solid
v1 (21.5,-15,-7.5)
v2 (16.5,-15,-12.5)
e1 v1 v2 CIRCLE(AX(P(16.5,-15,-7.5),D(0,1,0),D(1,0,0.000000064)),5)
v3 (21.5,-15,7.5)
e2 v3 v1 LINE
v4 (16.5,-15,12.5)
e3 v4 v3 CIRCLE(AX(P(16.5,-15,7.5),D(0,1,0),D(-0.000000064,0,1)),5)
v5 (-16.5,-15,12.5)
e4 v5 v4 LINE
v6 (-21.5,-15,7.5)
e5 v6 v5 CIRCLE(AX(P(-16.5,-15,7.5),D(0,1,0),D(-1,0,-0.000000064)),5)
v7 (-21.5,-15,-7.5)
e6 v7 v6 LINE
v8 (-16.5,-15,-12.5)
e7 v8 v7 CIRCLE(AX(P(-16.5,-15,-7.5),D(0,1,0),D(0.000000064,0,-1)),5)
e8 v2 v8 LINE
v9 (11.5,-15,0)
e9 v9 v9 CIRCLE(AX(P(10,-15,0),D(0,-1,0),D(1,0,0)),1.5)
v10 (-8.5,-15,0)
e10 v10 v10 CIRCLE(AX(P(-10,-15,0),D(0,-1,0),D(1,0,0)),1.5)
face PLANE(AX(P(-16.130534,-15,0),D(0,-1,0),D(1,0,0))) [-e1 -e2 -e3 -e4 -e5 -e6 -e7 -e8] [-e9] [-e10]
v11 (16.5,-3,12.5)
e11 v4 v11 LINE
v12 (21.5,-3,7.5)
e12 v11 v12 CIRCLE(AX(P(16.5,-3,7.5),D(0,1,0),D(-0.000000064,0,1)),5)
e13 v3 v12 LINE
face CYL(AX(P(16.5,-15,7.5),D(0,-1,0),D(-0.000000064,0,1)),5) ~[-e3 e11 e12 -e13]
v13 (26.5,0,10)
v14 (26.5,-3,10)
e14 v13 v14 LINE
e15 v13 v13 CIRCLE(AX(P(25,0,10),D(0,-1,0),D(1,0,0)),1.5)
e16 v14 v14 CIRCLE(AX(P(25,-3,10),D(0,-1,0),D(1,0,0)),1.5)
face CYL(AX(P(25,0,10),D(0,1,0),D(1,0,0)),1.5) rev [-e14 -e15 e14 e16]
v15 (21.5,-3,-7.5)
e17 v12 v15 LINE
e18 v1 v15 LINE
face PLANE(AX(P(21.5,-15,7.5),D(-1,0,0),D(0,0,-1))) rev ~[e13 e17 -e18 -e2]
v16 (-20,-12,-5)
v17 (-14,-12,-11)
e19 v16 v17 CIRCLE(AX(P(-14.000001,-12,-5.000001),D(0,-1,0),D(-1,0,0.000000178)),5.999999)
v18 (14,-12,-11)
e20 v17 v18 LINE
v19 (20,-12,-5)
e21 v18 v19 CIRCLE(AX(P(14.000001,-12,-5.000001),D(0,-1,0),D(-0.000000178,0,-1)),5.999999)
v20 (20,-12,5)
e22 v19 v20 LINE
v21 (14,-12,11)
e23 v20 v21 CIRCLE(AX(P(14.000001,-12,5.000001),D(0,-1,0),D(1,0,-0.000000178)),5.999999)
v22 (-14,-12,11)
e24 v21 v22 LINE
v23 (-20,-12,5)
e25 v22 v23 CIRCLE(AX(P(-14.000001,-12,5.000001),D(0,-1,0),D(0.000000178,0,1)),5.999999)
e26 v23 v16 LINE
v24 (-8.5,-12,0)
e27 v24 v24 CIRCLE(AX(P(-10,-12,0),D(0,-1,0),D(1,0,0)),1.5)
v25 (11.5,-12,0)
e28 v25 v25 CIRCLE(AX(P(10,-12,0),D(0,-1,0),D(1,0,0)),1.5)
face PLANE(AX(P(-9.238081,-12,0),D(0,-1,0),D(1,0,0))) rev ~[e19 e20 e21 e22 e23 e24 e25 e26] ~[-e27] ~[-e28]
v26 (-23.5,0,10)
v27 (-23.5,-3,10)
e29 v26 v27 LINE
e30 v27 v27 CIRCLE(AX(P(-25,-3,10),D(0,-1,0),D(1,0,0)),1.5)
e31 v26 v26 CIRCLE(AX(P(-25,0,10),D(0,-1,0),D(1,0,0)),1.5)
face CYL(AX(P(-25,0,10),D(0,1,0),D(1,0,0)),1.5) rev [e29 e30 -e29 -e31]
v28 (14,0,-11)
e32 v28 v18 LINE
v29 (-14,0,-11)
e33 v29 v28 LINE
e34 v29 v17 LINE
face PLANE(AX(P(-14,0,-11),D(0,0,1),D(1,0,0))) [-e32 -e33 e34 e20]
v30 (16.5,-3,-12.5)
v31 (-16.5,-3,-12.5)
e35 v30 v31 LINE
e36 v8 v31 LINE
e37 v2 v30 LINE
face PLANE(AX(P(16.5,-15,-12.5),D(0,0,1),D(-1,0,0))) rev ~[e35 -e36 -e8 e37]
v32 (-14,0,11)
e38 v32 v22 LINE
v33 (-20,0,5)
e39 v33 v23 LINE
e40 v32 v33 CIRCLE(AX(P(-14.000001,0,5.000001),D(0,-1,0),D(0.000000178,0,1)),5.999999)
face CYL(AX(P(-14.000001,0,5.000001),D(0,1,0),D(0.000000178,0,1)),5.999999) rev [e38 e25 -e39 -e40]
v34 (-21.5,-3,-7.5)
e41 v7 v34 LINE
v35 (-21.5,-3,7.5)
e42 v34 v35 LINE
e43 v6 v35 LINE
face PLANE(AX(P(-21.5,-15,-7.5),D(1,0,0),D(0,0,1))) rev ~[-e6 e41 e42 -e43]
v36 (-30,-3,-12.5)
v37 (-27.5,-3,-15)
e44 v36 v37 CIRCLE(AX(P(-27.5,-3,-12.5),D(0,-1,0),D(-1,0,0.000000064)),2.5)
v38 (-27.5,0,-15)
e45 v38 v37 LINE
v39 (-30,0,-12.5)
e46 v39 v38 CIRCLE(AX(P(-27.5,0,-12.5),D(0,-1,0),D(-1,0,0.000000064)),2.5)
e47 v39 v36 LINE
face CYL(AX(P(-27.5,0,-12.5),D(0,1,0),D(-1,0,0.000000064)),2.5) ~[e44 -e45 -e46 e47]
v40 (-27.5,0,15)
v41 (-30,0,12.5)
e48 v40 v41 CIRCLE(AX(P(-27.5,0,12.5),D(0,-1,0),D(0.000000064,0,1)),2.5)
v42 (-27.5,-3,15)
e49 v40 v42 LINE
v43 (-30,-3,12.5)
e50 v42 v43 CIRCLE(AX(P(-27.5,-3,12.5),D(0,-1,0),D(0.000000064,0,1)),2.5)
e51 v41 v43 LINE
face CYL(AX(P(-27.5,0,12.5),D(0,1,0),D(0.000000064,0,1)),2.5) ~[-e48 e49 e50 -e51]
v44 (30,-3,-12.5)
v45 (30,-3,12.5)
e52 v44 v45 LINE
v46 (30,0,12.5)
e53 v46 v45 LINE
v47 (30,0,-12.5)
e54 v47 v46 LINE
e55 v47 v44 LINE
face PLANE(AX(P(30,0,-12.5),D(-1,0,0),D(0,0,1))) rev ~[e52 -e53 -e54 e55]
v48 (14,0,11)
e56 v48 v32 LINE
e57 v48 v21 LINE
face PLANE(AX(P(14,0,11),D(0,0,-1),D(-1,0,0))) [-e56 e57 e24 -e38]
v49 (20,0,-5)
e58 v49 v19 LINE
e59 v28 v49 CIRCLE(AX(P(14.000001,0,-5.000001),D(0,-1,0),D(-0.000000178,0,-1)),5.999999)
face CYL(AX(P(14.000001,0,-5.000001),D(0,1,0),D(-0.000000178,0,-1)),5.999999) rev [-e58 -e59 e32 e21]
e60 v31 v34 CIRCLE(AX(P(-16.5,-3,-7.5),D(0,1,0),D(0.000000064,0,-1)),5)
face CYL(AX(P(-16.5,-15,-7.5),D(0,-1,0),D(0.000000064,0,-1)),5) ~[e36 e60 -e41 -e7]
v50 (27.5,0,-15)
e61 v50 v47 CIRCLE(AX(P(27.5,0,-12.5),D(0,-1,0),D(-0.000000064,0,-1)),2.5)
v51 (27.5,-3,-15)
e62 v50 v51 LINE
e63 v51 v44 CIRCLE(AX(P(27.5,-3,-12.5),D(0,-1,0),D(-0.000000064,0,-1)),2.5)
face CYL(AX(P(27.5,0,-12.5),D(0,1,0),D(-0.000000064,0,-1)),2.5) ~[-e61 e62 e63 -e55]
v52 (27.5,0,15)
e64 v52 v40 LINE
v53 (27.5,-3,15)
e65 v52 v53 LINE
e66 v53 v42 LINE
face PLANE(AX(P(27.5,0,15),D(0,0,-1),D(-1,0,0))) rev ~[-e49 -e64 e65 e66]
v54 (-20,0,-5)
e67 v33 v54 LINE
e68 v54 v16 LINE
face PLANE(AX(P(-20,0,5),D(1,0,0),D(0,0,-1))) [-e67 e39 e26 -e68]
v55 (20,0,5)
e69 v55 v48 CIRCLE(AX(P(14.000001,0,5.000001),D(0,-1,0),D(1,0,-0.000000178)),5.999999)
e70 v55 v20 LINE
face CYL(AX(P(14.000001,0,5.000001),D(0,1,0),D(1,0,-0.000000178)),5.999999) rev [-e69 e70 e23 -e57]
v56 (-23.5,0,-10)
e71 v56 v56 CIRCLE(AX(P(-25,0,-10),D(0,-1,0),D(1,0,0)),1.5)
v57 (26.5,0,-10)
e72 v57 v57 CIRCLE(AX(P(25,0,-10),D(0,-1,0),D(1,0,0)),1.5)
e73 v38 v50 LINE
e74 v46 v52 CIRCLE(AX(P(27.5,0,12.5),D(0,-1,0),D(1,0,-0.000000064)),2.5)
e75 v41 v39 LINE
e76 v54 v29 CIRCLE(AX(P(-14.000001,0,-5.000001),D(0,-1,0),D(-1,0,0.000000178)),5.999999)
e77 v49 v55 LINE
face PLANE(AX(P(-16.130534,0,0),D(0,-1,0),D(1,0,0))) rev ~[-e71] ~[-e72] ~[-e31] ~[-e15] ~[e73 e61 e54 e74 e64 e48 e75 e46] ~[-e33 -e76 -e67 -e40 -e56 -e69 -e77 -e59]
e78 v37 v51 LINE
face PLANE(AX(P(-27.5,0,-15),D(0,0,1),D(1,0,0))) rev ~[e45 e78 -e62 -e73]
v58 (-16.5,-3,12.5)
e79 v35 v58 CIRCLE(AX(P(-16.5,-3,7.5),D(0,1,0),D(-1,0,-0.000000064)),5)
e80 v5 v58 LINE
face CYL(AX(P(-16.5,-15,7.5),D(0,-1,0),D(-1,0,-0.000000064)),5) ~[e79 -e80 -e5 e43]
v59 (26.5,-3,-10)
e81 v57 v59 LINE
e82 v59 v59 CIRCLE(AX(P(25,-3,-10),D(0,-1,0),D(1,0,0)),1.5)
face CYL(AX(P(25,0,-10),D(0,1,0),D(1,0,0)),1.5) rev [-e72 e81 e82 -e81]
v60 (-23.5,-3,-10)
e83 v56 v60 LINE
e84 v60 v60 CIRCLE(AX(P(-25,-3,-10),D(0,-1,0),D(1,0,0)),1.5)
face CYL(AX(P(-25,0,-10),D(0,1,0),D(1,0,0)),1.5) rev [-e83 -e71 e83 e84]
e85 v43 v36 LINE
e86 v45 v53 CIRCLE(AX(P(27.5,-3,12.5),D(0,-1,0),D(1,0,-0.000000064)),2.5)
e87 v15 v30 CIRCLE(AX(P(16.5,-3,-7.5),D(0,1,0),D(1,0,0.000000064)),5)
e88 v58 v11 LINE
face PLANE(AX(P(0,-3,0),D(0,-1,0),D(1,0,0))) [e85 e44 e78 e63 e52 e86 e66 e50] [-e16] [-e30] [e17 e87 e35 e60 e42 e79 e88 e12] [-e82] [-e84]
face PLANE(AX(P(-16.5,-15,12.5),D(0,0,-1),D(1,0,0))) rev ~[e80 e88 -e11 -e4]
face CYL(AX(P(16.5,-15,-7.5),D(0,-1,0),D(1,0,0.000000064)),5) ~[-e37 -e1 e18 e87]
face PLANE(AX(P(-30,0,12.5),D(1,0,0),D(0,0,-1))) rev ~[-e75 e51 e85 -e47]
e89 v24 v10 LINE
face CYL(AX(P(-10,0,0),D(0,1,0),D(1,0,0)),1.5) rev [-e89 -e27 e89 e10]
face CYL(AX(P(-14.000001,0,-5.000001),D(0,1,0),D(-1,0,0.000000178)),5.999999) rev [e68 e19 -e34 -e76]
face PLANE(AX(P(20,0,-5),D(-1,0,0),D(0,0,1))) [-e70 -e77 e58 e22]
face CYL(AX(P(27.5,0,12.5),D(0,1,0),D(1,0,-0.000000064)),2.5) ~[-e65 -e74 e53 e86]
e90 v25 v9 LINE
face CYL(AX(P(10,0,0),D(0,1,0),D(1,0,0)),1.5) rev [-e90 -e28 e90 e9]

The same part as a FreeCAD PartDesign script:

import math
import FreeCAD as App
import Part
import Sketcher
from FreeCAD import Vector

doc = App.newDocument("Part")
body = doc.addObject("PartDesign::Body", "Body")

sketch1 = doc.addObject("Sketcher::SketchObject", "Sketch")
body.addObject(sketch1)
sketch1.AttachmentSupport = (doc.XZ_Plane, [""])
sketch1.MapMode = "FlatFace"
sketch1.addGeometry([
    Part.ArcOfCircle(Part.Circle(Vector(-27.5, 12.5, 0), Vector(0, 0, 1), 2.5), math.radians(89.999996), math.radians(180.000004)),
    Part.LineSegment(Vector(-30, 12.5, 0), Vector(-30, -12.5, 0)),
    Part.ArcOfCircle(Part.Circle(Vector(-27.5, -12.5, 0), Vector(0, 0, 1), 2.5), math.radians(179.999996), math.radians(270.000004)),
    Part.LineSegment(Vector(-27.5, -15, 0), Vector(27.5, -15, 0)),
    Part.ArcOfCircle(Part.Circle(Vector(27.5, -12.5, 0), Vector(0, 0, 1), 2.5), math.radians(-90.000004), math.radians(0.000004)),
    Part.LineSegment(Vector(30, -12.5, 0), Vector(30, 12.5, 0)),
    Part.ArcOfCircle(Part.Circle(Vector(27.5, 12.5, 0), Vector(0, 0, 1), 2.5), math.radians(-0.000004), math.radians(90.000004)),
    Part.LineSegment(Vector(27.5, 15, 0), Vector(-27.5, 15, 0)),
    Part.Circle(Vector(-25, -10, 0), Vector(0, 0, 1), 1.5),
    Part.Circle(Vector(25, -10, 0), Vector(0, 0, 1), 1.5),
    Part.Circle(Vector(-10, 0, 0), Vector(0, 0, 1), 1.5),
    Part.Circle(Vector(-25, 10, 0), Vector(0, 0, 1), 1.5),
    Part.Circle(Vector(10, 0, 0), Vector(0, 0, 1), 1.5),
    Part.Circle(Vector(25, 10, 0), Vector(0, 0, 1), 1.5),
], False)
sketch1.addConstraint([
    Sketcher.Constraint("Tangent", 0, 2, 1, 1),
    Sketcher.Constraint("Tangent", 1, 2, 2, 1),
    Sketcher.Constraint("Tangent", 2, 2, 3, 1),
    Sketcher.Constraint("Tangent", 3, 2, 4, 1),
    Sketcher.Constraint("Tangent", 4, 2, 5, 1),
    Sketcher.Constraint("Tangent", 5, 2, 6, 1),
    Sketcher.Constraint("Tangent", 6, 2, 7, 1),
    Sketcher.Constraint("Tangent", 7, 2, 0, 1),
    Sketcher.Constraint("Vertical", 1),
    Sketcher.Constraint("Horizontal", 3),
    Sketcher.Constraint("Vertical", 5),
    Sketcher.Constraint("Horizontal", 7),
    Sketcher.Constraint("Equal", 0, 2),
    Sketcher.Constraint("Equal", 2, 4),
    Sketcher.Constraint("Equal", 4, 6),
    Sketcher.Constraint("Equal", 8, 9),
    Sketcher.Constraint("Equal", 9, 10),
    Sketcher.Constraint("Equal", 10, 11),
    Sketcher.Constraint("Equal", 11, 12),
    Sketcher.Constraint("Equal", 12, 13),
    Sketcher.Constraint("Symmetric", 0, 3, 4, 3, -1, 1),
    Sketcher.Constraint("Symmetric", 9, 3, 11, 3, -1, 1),
    Sketcher.Constraint("Symmetric", 10, 3, 12, 3, -1, 1),
    Sketcher.Constraint("Symmetric", 8, 3, 13, 3, -1, 1),
    Sketcher.Constraint("Symmetric", 8, 3, 9, 3, -2),
    Sketcher.Constraint("PointOnObject", 10, 3, -1),
    Sketcher.Constraint("Diameter", 8, 3.0),
    Sketcher.Constraint("Radius", 0, 2.5),
    Sketcher.Constraint("DistanceX", 3, 1, 3, 2, 55.0),
    Sketcher.Constraint("DistanceY", 1, 2, 1, 1, 25.0),
    Sketcher.Constraint("DistanceX", 8, 3, -1, 1, 25.0),
    Sketcher.Constraint("DistanceY", 8, 3, -1, 1, 10.0),
    Sketcher.Constraint("DistanceX", 10, 3, -1, 1, 10.0),
])
pad1 = doc.addObject("PartDesign::Pad", "Pad")
body.addObject(pad1)
pad1.Profile = sketch1
pad1.Length = 15

sketch2 = doc.addObject("Sketcher::SketchObject", "Sketch001")
body.addObject(sketch2)
sketch2.AttachmentSupport = (doc.XZ_Plane, [""])
sketch2.MapMode = "FlatFace"
sketch2.addGeometry([
    Part.LineSegment(Vector(-14, -11, 0), Vector(14, -11, 0)),
    Part.ArcOfCircle(Part.Circle(Vector(14.000001, -5.000001, 0), Vector(0, 0, 1), 5.999999), math.radians(-90.00001), math.radians(0.00001)),
    Part.LineSegment(Vector(20, -5, 0), Vector(20, 5, 0)),
    Part.ArcOfCircle(Part.Circle(Vector(14.000001, 5.000001, 0), Vector(0, 0, 1), 5.999999), math.radians(-0.00001), math.radians(90.00001)),
    Part.LineSegment(Vector(14, 11, 0), Vector(-14, 11, 0)),
    Part.ArcOfCircle(Part.Circle(Vector(-14.000001, 5.000001, 0), Vector(0, 0, 1), 5.999999), math.radians(89.99999), math.radians(180.00001)),
    Part.LineSegment(Vector(-20, 5, 0), Vector(-20, -5, 0)),
    Part.ArcOfCircle(Part.Circle(Vector(-14.000001, -5.000001, 0), Vector(0, 0, 1), 5.999999), math.radians(179.99999), math.radians(270.00001)),
    Part.Circle(Vector(-10, 0, 0), Vector(0, 0, 1), 1.5),
    Part.Circle(Vector(10, 0, 0), Vector(0, 0, 1), 1.5),
], False)
sketch2.addConstraint([
    Sketcher.Constraint("Tangent", 0, 2, 1, 1),
    Sketcher.Constraint("Tangent", 1, 2, 2, 1),
    Sketcher.Constraint("Tangent", 2, 2, 3, 1),
    Sketcher.Constraint("Tangent", 3, 2, 4, 1),
    Sketcher.Constraint("Tangent", 4, 2, 5, 1),
    Sketcher.Constraint("Tangent", 5, 2, 6, 1),
    Sketcher.Constraint("Tangent", 6, 2, 7, 1),
    Sketcher.Constraint("Tangent", 7, 2, 0, 1),
    Sketcher.Constraint("Horizontal", 0),
    Sketcher.Constraint("Vertical", 2),
    Sketcher.Constraint("Horizontal", 4),
    Sketcher.Constraint("Vertical", 6),
    Sketcher.Constraint("Equal", 1, 3),
    Sketcher.Constraint("Equal", 3, 5),
    Sketcher.Constraint("Equal", 5, 7),
    Sketcher.Constraint("Equal", 8, 9),
    Sketcher.Constraint("Symmetric", 1, 3, 5, 3, -1, 1),
    Sketcher.Constraint("Symmetric", 8, 3, 9, 3, -1, 1),
    Sketcher.Constraint("PointOnObject", 8, 3, -1),
    Sketcher.Constraint("Diameter", 8, 3.0),
    Sketcher.Constraint("Radius", 1, 5.999999),
    Sketcher.Constraint("DistanceX", 0, 1, 0, 2, 28.0),
    Sketcher.Constraint("DistanceY", 2, 1, 2, 2, 10.0),
    Sketcher.Constraint("DistanceX", 8, 3, -1, 1, 10.0),
])
pocket1 = doc.addObject("PartDesign::Pocket", "Pocket")
body.addObject(pocket1)
pocket1.Profile = sketch2
pocket1.Length = 12
pocket1.Reversed = True

sketch3 = doc.addObject("Sketcher::SketchObject", "Sketch002")
body.addObject(sketch3)
sketch3.AttachmentSupport = (doc.XZ_Plane, [""])
sketch3.MapMode = "FlatFace"
sketch3.AttachmentOffset = App.Placement(Vector(0, 0, 15), App.Rotation())
sketch3.addGeometry([
    Part.ArcOfCircle(Part.Circle(Vector(27.5, 12.5, 0), Vector(0, 0, 1), 2.5), math.radians(-0.000004), math.radians(90.000004)),
    Part.LineSegment(Vector(27.5, 15, 0), Vector(-27.5, 15, 0)),
    Part.ArcOfCircle(Part.Circle(Vector(-27.5, 12.5, 0), Vector(0, 0, 1), 2.5), math.radians(89.999996), math.radians(180.000004)),
    Part.LineSegment(Vector(-30, 12.5, 0), Vector(-30, -12.5, 0)),
    Part.ArcOfCircle(Part.Circle(Vector(-27.5, -12.5, 0), Vector(0, 0, 1), 2.5), math.radians(179.999996), math.radians(270.000004)),
    Part.LineSegment(Vector(-27.5, -15, 0), Vector(27.5, -15, 0)),
    Part.ArcOfCircle(Part.Circle(Vector(27.5, -12.5, 0), Vector(0, 0, 1), 2.5), math.radians(-90.000004), math.radians(0.000004)),
    Part.LineSegment(Vector(30, -12.5, 0), Vector(30, 12.5, 0)),
    Part.Circle(Vector(-25, -10, 0), Vector(0, 0, 1), 1.5),
    Part.Circle(Vector(25, -10, 0), Vector(0, 0, 1), 1.5),
    Part.Circle(Vector(-25, 10, 0), Vector(0, 0, 1), 1.5),
    Part.LineSegment(Vector(-21.5, -7.5, 0), Vector(-21.5, 7.5, 0)),
    Part.ArcOfCircle(Part.Circle(Vector(-16.5, 7.5, 0), Vector(0, 0, 1), 5), math.radians(89.999996), math.radians(180.000004)),
    Part.LineSegment(Vector(-16.5, 12.5, 0), Vector(16.5, 12.5, 0)),
    Part.ArcOfCircle(Part.Circle(Vector(16.5, 7.5, 0), Vector(0, 0, 1), 5), math.radians(-0.000004), math.radians(90.000004)),
    Part.LineSegment(Vector(21.5, 7.5, 0), Vector(21.5, -7.5, 0)),
    Part.ArcOfCircle(Part.Circle(Vector(16.5, -7.5, 0), Vector(0, 0, 1), 5), math.radians(-90.000004), math.radians(0.000004)),
    Part.LineSegment(Vector(16.5, -12.5, 0), Vector(-16.5, -12.5, 0)),
    Part.ArcOfCircle(Part.Circle(Vector(-16.5, -7.5, 0), Vector(0, 0, 1), 5), math.radians(179.999996), math.radians(270.000004)),
    Part.Circle(Vector(25, 10, 0), Vector(0, 0, 1), 1.5),
], False)
sketch3.addConstraint([
    Sketcher.Constraint("Tangent", 0, 2, 1, 1),
    Sketcher.Constraint("Tangent", 1, 2, 2, 1),
    Sketcher.Constraint("Tangent", 2, 2, 3, 1),
    Sketcher.Constraint("Tangent", 3, 2, 4, 1),
    Sketcher.Constraint("Tangent", 4, 2, 5, 1),
    Sketcher.Constraint("Tangent", 5, 2, 6, 1),
    Sketcher.Constraint("Tangent", 6, 2, 7, 1),
    Sketcher.Constraint("Tangent", 7, 2, 0, 1),
    Sketcher.Constraint("Tangent", 11, 2, 12, 2),
    Sketcher.Constraint("Tangent", 12, 1, 13, 1),
    Sketcher.Constraint("Tangent", 13, 2, 14, 2),
    Sketcher.Constraint("Tangent", 14, 1, 15, 1),
    Sketcher.Constraint("Tangent", 15, 2, 16, 2),
    Sketcher.Constraint("Tangent", 16, 1, 17, 1),
    Sketcher.Constraint("Tangent", 17, 2, 18, 2),
    Sketcher.Constraint("Tangent", 18, 1, 11, 1),
    Sketcher.Constraint("Horizontal", 1),
    Sketcher.Constraint("Vertical", 3),
    Sketcher.Constraint("Horizontal", 5),
    Sketcher.Constraint("Vertical", 7),
    Sketcher.Constraint("Vertical", 11),
    Sketcher.Constraint("Horizontal", 13),
    Sketcher.Constraint("Vertical", 15),
    Sketcher.Constraint("Horizontal", 17),
    Sketcher.Constraint("Equal", 0, 2),
    Sketcher.Constraint("Equal", 2, 4),
    Sketcher.Constraint("Equal", 4, 6),
    Sketcher.Constraint("Equal", 8, 9),
    Sketcher.Constraint("Equal", 9, 10),
    Sketcher.Constraint("Equal", 12, 14),
    Sketcher.Constraint("Equal", 14, 16),
    Sketcher.Constraint("Equal", 16, 18),
    Sketcher.Constraint("Equal", 10, 19),
    Sketcher.Constraint("Symmetric", 0, 3, 4, 3, -1, 1),
    Sketcher.Constraint("Symmetric", 9, 3, 10, 3, -1, 1),
    Sketcher.Constraint("Symmetric", 12, 3, 16, 3, -1, 1),
    Sketcher.Constraint("Symmetric", 8, 3, 19, 3, -1, 1),
    Sketcher.Constraint("Symmetric", 8, 3, 9, 3, -2),
    Sketcher.Constraint("Horizontal", 7, 2, 12, 1),
    Sketcher.Constraint("Diameter", 8, 3.0),
    Sketcher.Constraint("Radius", 12, 5.0),
    Sketcher.Constraint("Radius", 0, 2.5),
    Sketcher.Constraint("DistanceX", 1, 2, 1, 1, 55.0),
    Sketcher.Constraint("DistanceX", 13, 1, 13, 2, 33.0),
    Sketcher.Constraint("DistanceY", 3, 2, 3, 1, 25.0),
    Sketcher.Constraint("DistanceX", 8, 3, -1, 1, 25.0),
    Sketcher.Constraint("DistanceY", 8, 3, -1, 1, 10.0),
])
pocket2 = doc.addObject("PartDesign::Pocket", "Pocket001")
body.addObject(pocket2)
pocket2.Profile = sketch3
pocket2.Length = 12

doc.recompute()
